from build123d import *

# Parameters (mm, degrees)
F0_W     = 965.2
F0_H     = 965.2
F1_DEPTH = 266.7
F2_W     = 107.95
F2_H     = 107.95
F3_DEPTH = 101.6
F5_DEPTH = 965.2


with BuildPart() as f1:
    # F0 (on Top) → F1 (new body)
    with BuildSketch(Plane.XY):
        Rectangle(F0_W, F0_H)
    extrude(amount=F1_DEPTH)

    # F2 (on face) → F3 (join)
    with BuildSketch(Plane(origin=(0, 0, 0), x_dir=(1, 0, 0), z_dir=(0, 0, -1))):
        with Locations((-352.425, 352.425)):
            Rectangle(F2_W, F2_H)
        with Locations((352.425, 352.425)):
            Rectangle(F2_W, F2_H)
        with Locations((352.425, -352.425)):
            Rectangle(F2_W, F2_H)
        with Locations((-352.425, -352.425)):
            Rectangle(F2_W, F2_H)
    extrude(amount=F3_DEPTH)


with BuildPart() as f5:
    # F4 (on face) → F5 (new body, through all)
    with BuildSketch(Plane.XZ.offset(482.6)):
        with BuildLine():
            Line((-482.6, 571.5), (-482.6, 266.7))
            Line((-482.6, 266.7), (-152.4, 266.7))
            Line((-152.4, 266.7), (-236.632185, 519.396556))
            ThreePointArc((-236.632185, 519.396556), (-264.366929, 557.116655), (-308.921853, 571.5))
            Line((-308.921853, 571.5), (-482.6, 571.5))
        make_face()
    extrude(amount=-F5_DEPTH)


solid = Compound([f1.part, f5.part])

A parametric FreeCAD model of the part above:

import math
import FreeCAD as App
import Part
import Sketcher

V = App.Vector
Q = App.Units.Quantity


def add_polygon(sketch, points):
    """Adds a closed chain of lines whose ends are joined by coincident constraints."""
    first, n = sketch.GeometryCount, len(points)
    for a, b in zip(points, points[1:] + points[:1]):
        sketch.addGeometry(Part.LineSegment(App.Vector(*a, 0), App.Vector(*b, 0)), False)
    for i in range(n):
        sketch.addConstraint(Sketcher.Constraint("Coincident", first + i, 2, first + (i + 1) % n, 1))

doc = App.newDocument("Part")
body = doc.addObject("PartDesign::Body", "Body")

# Sketch on XY plane
sketch1 = body.newObject("Sketcher::SketchObject", "Sketch")
sketch1.AttachmentSupport = (doc.getObject("XY_Plane"), [""])
sketch1.MapMode = "FlatFace"
add_polygon(sketch1, [(-483, 483), (-483, -483), (483, -483), (483, 483)])  # lines 0-3
sketch1.addConstraint([
    Sketcher.Constraint("Vertical", 0),
    Sketcher.Constraint("Horizontal", 1),
    Sketcher.Constraint("Vertical", 2),
    Sketcher.Constraint("Horizontal", 3),
    Sketcher.Constraint("Symmetric", 0, 2, 2, 2, -1, 1),
    Sketcher.Constraint("Equal", 3, 0),
    Sketcher.Constraint("DistanceX", 1, 1, 1, 2, Q("38 in")),
])
pad1 = body.newObject("PartDesign::Pad", "Pad")
pad1.Profile = sketch1
pad1.Length = Q("10.5 in")

# Sketch on XY plane
sketch2 = body.newObject("Sketcher::SketchObject", "Sketch001")
sketch2.AttachmentSupport = (doc.getObject("XY_Plane"), [""])
sketch2.MapMode = "FlatFace"
add_polygon(sketch2, [(-406, -406), (-406, -298), (-298, -298), (-298, -406)])  # lines 0-3
add_polygon(sketch2, [(298, -406), (298, -298), (406, -298), (406, -406)])  # lines 4-7
add_polygon(sketch2, [(298, 298), (298, 406), (406, 406), (406, 298)])  # lines 8-11
add_polygon(sketch2, [(-406, 298), (-406, 406), (-298, 406), (-298, 298)])  # lines 12-15
sketch2.addConstraint([
    Sketcher.Constraint("Vertical", 0),
    Sketcher.Constraint("Horizontal", 1),
    Sketcher.Constraint("Vertical", 2),
    Sketcher.Constraint("Horizontal", 3),
    Sketcher.Constraint("Vertical", 4),
    Sketcher.Constraint("Horizontal", 5),
    Sketcher.Constraint("Vertical", 6),
    Sketcher.Constraint("Horizontal", 7),
    Sketcher.Constraint("Vertical", 8),
    Sketcher.Constraint("Horizontal", 9),
    Sketcher.Constraint("Vertical", 10),
    Sketcher.Constraint("Horizontal", 11),
    Sketcher.Constraint("Vertical", 12),
    Sketcher.Constraint("Horizontal", 13),
    Sketcher.Constraint("Vertical", 14),
    Sketcher.Constraint("Horizontal", 15),
    Sketcher.Constraint("Symmetric", 2, 2, 8, 2, -1, 1),
    Sketcher.Constraint("Symmetric", 0, 2, 10, 2, -1, 1),
    Sketcher.Constraint("Symmetric", 6, 2, 12, 2, -1, 1),
    Sketcher.Constraint("Symmetric", 4, 2, 14, 2, -1, 1),
    Sketcher.Constraint("Symmetric", 1, 2, 4, 2, -2),
    Sketcher.Constraint("Symmetric", 3, 2, 6, 2, -2),
    Sketcher.Constraint("Equal", 15, 0),
    Sketcher.Constraint("DistanceX", 0, 2, -1, 1, Q("16 in")),
    Sketcher.Constraint("DistanceY", 2, 2, -1, 1, Q("16 in")),
    Sketcher.Constraint("DistanceX", 1, 1, 1, 2, Q("4.25 in")),
])
pad2 = body.newObject("PartDesign::Pad", "Pad001")
pad2.Profile = sketch2
pad2.Length = Q("4 in")
pad2.Reversed = True
body2 = doc.addObject("PartDesign::Body", "Body001")

# Sketch on XZ plane
sketch3 = body2.newObject("Sketcher::SketchObject", "Sketch002")
sketch3.AttachmentSupport = (doc.getObject("XZ_Plane001"), [""])
sketch3.MapMode = "FlatFace"
sketch3.AttachmentOffset = App.Placement(V(0, 0, 19 * 25.4), App.Rotation())
sketch3.addGeometry([
    Part.LineSegment(V(-483, 572, 0), V(-483, 267, 0)),  # 0
    Part.LineSegment(V(-483, 267, 0), V(-152, 267, 0)),  # 1
    Part.LineSegment(V(-152, 267, 0), V(-237, 519, 0)),  # 2
    Part.ArcOfCircle(Part.Circle(V(-309, 495, 0), V(0, 0, 1), 76), math.radians(18), math.radians(90)),  # 3
    Part.LineSegment(V(-309, 572, 0), V(-483, 572, 0)),  # 4
], False)
sketch3.addConstraint([
    Sketcher.Constraint("Coincident", 0, 2, 1, 1),
    Sketcher.Constraint("Coincident", 1, 2, 2, 1),
    Sketcher.Constraint("Tangent", 2, 2, 3, 1),
    Sketcher.Constraint("Tangent", 3, 2, 4, 1),
    Sketcher.Constraint("Coincident", 4, 2, 0, 1),
    Sketcher.Constraint("Vertical", 0),
    Sketcher.Constraint("Horizontal", 1),
    Sketcher.Constraint("Horizontal", 4),
    Sketcher.Constraint("Radius", 3, Q("3 in")),
    Sketcher.Constraint("DistanceX", 1, 1, 1, 2, Q("13 in")),
    Sketcher.Constraint("DistanceY", 0, 2, 0, 1, Q("12 in")),
    Sketcher.Constraint("DistanceX", 0, 2, -1, 1, Q("19 in")),
    Sketcher.Constraint("DistanceY", -1, 1, 3, 3, Q("19.5 in")),
    Sketcher.Constraint("DistanceX", 4, 2, 4, 1, Q("173.678147 mm")),
])
pad3 = body2.newObject("PartDesign::Pad", "Pad002")
pad3.Profile = sketch3
pad3.Length = Q("38 in")
pad3.Reversed = True

doc.recompute()
